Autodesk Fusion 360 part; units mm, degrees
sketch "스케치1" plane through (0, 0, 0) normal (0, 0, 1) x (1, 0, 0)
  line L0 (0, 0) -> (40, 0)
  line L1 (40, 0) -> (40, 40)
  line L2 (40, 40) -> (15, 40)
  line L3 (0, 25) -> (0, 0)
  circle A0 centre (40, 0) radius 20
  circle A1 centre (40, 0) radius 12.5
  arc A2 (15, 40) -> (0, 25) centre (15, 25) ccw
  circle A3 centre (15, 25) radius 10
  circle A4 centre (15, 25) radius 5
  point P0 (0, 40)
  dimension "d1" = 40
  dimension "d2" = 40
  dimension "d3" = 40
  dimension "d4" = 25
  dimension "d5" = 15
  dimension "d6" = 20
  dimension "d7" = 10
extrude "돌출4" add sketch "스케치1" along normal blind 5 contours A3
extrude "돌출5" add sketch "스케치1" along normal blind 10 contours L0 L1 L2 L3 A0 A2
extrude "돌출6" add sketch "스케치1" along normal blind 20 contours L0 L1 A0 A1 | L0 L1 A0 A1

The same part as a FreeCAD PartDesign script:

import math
import FreeCAD as App
import Part
import Sketcher
from FreeCAD import Vector

doc = App.newDocument("Part")
body = doc.addObject("PartDesign::Body", "Body")

sketch1 = body.newObject("Sketcher::SketchObject", "Sketch")
sketch1.AttachmentSupport = (doc.getObject("XY_Plane"), [""])
sketch1.MapMode = "FlatFace"
sketch1.addGeometry([
    Part.Circle(Vector(15, 25, 0), Vector(0, 0, 1), 10),
    Part.Circle(Vector(15, 25, 0), Vector(0, 0, 1), 5),
], False)
sketch1.addConstraint([
    Sketcher.Constraint("Coincident", 1, 3, 0, 3),
    Sketcher.Constraint("Diameter", 0, 20.0),
    Sketcher.Constraint("Diameter", 1, 10.0),
    Sketcher.Constraint("DistanceX", -1, 1, 0, 3, 15.0),
    Sketcher.Constraint("DistanceY", -1, 1, 0, 3, 25.0),
])
pad1 = body.newObject("PartDesign::Pad", "Pad")
pad1.Profile = sketch1
pad1.Length = 5

sketch2 = body.newObject("Sketcher::SketchObject", "Sketch001")
sketch2.AttachmentSupport = (doc.getObject("XY_Plane"), [""])
sketch2.MapMode = "FlatFace"
sketch2.addGeometry([
    Part.LineSegment(Vector(0, 25, 0), Vector(0, 0, 0)),
    Part.LineSegment(Vector(0, 0, 0), Vector(20, 0, 0)),
    Part.ArcOfCircle(Part.Circle(Vector(40, 0, 0), Vector(0, 0, 1), 20), math.radians(90), math.radians(180)),
    Part.LineSegment(Vector(40, 20, 0), Vector(40, 40, 0)),
    Part.LineSegment(Vector(40, 40, 0), Vector(15, 40, 0)),
    Part.ArcOfCircle(Part.Circle(Vector(15, 25, 0), Vector(0, 0, 1), 15), math.radians(90), math.radians(180)),
    Part.Circle(Vector(15, 25, 0), Vector(0, 0, 1), 10),
], False)
sketch2.addConstraint([
    Sketcher.Constraint("Coincident", 0, 2, 1, 1),
    Sketcher.Constraint("Coincident", 1, 2, 2, 2),
    Sketcher.Constraint("Coincident", 2, 1, 3, 1),
    Sketcher.Constraint("Coincident", 3, 2, 4, 1),
    Sketcher.Constraint("Tangent", 4, 2, 5, 1),
    Sketcher.Constraint("Tangent", 5, 2, 0, 1),
    Sketcher.Constraint("Vertical", 0),
    Sketcher.Constraint("Horizontal", 1),
    Sketcher.Constraint("Vertical", 3),
    Sketcher.Constraint("Horizontal", 4),
    Sketcher.Constraint("Coincident", 0, 2, -1, 1),
    Sketcher.Constraint("Coincident", 6, 3, 5, 3),
    Sketcher.Constraint("PointOnObject", 2, 3, -1),
    Sketcher.Constraint("Equal", 4, 0),
    Sketcher.Constraint("Equal", 1, 3),
    Sketcher.Constraint("Diameter", 6, 20.0),
    Sketcher.Constraint("Radius", 2, 20.0),
    Sketcher.Constraint("Radius", 5, 15.0),
    Sketcher.Constraint("DistanceX", 1, 1, 1, 2, 20.0),
])
pad2 = body.newObject("PartDesign::Pad", "Pad001")
pad2.Profile = sketch2
pad2.Length = 10

sketch3 = body.newObject("Sketcher::SketchObject", "Sketch002")
sketch3.AttachmentSupport = (doc.getObject("XY_Plane"), [""])
sketch3.MapMode = "FlatFace"
sketch3.addGeometry([
    Part.Circle(Vector(40, 0, 0), Vector(0, 0, 1), 20),
    Part.Circle(Vector(40, 0, 0), Vector(0, 0, 1), 12.5),
], False)
sketch3.addConstraint([
    Sketcher.Constraint("Coincident", 1, 3, 0, 3),
    Sketcher.Constraint("PointOnObject", 0, 3, -1),
    Sketcher.Constraint("Diameter", 0, 40.0),
    Sketcher.Constraint("Diameter", 1, 25.0),
    Sketcher.Constraint("DistanceX", -1, 1, 0, 3, 40.0),
])
pad3 = body.newObject("PartDesign::Pad", "Pad002")
pad3.Profile = sketch3
pad3.Length = 20

doc.recompute()
